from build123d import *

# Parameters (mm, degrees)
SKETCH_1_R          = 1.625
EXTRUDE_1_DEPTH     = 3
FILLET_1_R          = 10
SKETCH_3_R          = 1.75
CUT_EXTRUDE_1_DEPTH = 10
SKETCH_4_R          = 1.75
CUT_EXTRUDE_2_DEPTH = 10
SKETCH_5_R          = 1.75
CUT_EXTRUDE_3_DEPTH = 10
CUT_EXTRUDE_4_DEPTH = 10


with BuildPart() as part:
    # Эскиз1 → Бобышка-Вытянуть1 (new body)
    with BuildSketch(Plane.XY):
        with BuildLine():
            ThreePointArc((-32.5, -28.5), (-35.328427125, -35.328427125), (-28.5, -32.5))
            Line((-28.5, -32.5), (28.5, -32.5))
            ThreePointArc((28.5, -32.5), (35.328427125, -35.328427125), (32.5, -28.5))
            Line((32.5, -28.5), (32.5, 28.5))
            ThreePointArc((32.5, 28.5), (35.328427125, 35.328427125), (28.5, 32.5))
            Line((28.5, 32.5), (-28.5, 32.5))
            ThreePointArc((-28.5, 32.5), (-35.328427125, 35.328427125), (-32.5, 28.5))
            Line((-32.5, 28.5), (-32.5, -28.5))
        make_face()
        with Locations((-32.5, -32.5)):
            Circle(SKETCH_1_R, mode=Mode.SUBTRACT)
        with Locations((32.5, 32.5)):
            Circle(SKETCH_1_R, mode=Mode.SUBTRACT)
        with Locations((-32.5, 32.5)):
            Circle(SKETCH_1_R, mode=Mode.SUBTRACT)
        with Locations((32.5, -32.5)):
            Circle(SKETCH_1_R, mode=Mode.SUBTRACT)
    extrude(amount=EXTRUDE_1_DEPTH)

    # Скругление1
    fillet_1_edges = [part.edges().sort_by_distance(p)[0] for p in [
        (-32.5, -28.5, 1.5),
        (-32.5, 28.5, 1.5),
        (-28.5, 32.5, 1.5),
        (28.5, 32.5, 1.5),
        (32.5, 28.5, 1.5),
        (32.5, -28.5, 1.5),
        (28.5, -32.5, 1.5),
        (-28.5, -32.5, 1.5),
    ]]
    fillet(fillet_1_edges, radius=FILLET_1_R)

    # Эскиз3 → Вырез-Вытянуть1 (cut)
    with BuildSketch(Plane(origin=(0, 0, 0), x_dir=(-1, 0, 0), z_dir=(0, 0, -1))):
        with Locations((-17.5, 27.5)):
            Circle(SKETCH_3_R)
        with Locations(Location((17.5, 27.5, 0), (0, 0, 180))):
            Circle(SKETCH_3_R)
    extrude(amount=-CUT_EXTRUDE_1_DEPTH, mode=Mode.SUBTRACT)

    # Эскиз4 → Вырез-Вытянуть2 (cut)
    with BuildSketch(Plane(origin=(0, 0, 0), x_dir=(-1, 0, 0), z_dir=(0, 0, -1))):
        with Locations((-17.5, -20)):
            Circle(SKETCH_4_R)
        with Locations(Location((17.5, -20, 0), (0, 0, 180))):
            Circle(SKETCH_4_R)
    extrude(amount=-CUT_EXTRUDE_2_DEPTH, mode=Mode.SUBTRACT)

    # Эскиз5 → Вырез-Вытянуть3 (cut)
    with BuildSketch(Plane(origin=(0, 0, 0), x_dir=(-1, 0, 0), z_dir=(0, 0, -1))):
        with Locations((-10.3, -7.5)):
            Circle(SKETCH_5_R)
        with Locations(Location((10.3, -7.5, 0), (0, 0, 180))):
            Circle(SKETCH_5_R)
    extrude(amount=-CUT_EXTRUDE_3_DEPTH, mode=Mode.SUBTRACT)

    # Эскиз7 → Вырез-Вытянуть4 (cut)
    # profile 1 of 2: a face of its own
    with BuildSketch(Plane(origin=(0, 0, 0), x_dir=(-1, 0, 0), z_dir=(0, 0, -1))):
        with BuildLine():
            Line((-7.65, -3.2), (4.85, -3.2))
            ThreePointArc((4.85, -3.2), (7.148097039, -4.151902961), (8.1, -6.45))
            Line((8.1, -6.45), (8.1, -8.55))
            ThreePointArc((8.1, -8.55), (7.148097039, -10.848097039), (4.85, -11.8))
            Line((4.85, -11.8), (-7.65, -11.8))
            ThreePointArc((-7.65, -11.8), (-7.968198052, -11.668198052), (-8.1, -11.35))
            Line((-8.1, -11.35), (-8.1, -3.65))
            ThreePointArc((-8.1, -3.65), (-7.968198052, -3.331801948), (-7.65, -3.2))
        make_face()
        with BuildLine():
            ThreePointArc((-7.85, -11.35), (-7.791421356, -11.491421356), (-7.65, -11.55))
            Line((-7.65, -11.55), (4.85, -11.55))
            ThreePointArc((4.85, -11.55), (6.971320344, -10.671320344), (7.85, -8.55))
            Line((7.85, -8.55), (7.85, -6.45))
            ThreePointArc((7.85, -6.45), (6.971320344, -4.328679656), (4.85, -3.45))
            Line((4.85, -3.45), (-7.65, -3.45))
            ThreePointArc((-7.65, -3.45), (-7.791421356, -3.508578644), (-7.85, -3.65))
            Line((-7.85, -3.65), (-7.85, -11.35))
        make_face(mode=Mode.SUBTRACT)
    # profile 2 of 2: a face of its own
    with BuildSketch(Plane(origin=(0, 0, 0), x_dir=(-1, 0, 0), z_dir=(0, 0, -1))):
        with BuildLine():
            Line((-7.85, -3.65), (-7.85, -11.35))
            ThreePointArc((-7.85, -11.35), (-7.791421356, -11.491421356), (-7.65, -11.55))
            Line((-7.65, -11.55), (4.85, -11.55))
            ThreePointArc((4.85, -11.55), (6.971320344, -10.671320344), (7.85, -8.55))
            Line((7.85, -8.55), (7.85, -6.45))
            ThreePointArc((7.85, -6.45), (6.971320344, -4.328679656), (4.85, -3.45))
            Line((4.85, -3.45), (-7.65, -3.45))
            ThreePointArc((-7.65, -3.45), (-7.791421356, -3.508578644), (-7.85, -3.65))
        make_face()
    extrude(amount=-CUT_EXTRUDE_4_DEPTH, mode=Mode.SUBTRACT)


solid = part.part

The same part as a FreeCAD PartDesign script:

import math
import FreeCAD as App
import Part
import Sketcher

V = App.Vector


def edges_at(feature, points):
    """Names of the edges that pass closest to the given points."""
    edges = feature.Shape.Edges
    near = lambda p: min(range(len(edges)), key=lambda i: edges[i].distToShape(Part.Vertex(*p))[0])
    return sorted({f"Edge{near(p) + 1}" for p in points})

doc = App.newDocument("Part")
params = doc.addObject("Spreadsheet::Sheet", "Params")
for row, (alias, value) in enumerate([
    ("sketch1_radius", "4 mm"),
    ("sketch1_diameter", "3.25 mm"),
    ("sketch1_width", "57 mm"),
    ("pad1_length", "3 mm"),
    ("fillet_radius", "10 mm"),
    ("sketch2_diameter", "3.5 mm"),
    ("pocket1_length", "10 mm"),
    ("sketch3_diameter", "3.5 mm"),
    ("pocket2_length", "10 mm"),
    ("sketch4_diameter", "3.5 mm"),
    ("pocket3_length", "10 mm"),
    ("sketch5_radius", "0.45 mm"),
    ("sketch5_radius2", "3.25 mm"),
    ("sketch5_width", "12.5 mm"),
    ("sketch5_height", "7.7 mm"),
    ("pocket4_length", "10 mm"),
], start=1):
    params.set(f"A{row}", alias)
    params.set(f"B{row}", "=" + value)
    params.setAlias(f"B{row}", alias)

body = doc.addObject("PartDesign::Body", "Body")

# Sketch on XY plane
sketch1 = body.newObject("Sketcher::SketchObject", "Sketch")
sketch1.AttachmentSupport = (doc.getObject("XY_Plane"), [""])
sketch1.MapMode = "FlatFace"
sketch1.addGeometry([
    Part.ArcOfCircle(Part.Circle(V(-32.5, -32.5, 0), V(0, 0, 1), 4), math.radians(90), math.radians(360)),  # 0
    Part.LineSegment(V(-28.5, -32.5, 0), V(28.5, -32.5, 0)),  # 1
    Part.ArcOfCircle(Part.Circle(V(32.5, -32.5, 0), V(0, 0, 1), 4), math.radians(180), math.radians(450)),  # 2
    Part.LineSegment(V(32.5, -28.5, 0), V(32.5, 28.5, 0)),  # 3
    Part.ArcOfCircle(Part.Circle(V(32.5, 32.5, 0), V(0, 0, 1), 4), math.radians(-90), math.radians(180)),  # 4
    Part.LineSegment(V(28.5, 32.5, 0), V(-28.5, 32.5, 0)),  # 5
    Part.ArcOfCircle(Part.Circle(V(-32.5, 32.5, 0), V(0, 0, 1), 4), math.radians(0), math.radians(270)),  # 6
    Part.LineSegment(V(-32.5, 28.5, 0), V(-32.5, -28.5, 0)),  # 7
    Part.Circle(V(-32.5, -32.5, 0), V(0, 0, 1), 1.625),  # 8
    Part.Circle(V(32.5, -32.5, 0), V(0, 0, 1), 1.625),  # 9
    Part.Circle(V(-32.5, 32.5, 0), V(0, 0, 1), 1.625),  # 10
    Part.Circle(V(32.5, 32.5, 0), V(0, 0, 1), 1.625),  # 11
], False)
sketch1.addConstraint([
    Sketcher.Constraint("Coincident", 0, 2, 1, 1),
    Sketcher.Constraint("Coincident", 1, 2, 2, 1),
    Sketcher.Constraint("Coincident", 2, 2, 3, 1),
    Sketcher.Constraint("Coincident", 3, 2, 4, 1),
    Sketcher.Constraint("Coincident", 4, 2, 5, 1),
    Sketcher.Constraint("Coincident", 5, 2, 6, 1),
    Sketcher.Constraint("Coincident", 6, 2, 7, 1),
    Sketcher.Constraint("Coincident", 7, 2, 0, 1),
    Sketcher.Constraint("Horizontal", 1),
    Sketcher.Constraint("Vertical", 3),
    Sketcher.Constraint("Horizontal", 5),
    Sketcher.Constraint("Vertical", 7),
    Sketcher.Constraint("Coincident", 8, 3, 0, 3),
    Sketcher.Constraint("Coincident", 9, 3, 2, 3),
    Sketcher.Constraint("Coincident", 10, 3, 6, 3),
    Sketcher.Constraint("Coincident", 11, 3, 4, 3),
    Sketcher.Constraint("Equal", 0, 2),
    Sketcher.Constraint("Equal", 2, 4),
    Sketcher.Constraint("Equal", 4, 6),
    Sketcher.Constraint("Equal", 8, 9),
    Sketcher.Constraint("Equal", 9, 10),
    Sketcher.Constraint("Equal", 10, 11),
    Sketcher.Constraint("Symmetric", 0, 3, 4, 3, -1, 1),
    Sketcher.Constraint("Symmetric", 2, 3, 6, 3, -1, 1),
    Sketcher.Constraint("Symmetric", 0, 3, 2, 3, -2),
    Sketcher.Constraint("Horizontal", 9, 3, 0, 2),
    Sketcher.Constraint("Horizontal", 11, 3, 4, 2),
    Sketcher.Constraint("Vertical", 11, 3, 2, 2),
    Sketcher.Constraint("Vertical", 10, 3, 6, 2),
    Sketcher.Constraint("Equal", 5, 3),
    Sketcher.Constraint("Radius", 0, 4.0),
    Sketcher.Constraint("Diameter", 8, 3.25),
    Sketcher.Constraint("DistanceX", 1, 1, 1, 2, 57.0),
])
sketch1.setExpression("Constraints[30]", "Params.sketch1_radius")
sketch1.setExpression("Constraints[31]", "Params.sketch1_diameter")
sketch1.setExpression("Constraints[32]", "Params.sketch1_width")
pad1 = body.newObject("PartDesign::Pad", "Pad")
pad1.Profile = sketch1
pad1.setExpression("Length", "Params.pad1_length")
doc.recompute()

fillet = body.newObject("PartDesign::Fillet", "Fillet")
fillet.Base = (pad1, edges_at(pad1, [
    (-32.5, -28.5, 1.5),
    (-32.5, 28.5, 1.5),
    (-28.5, 32.5, 1.5),
    (28.5, 32.5, 1.5),
    (32.5, 28.5, 1.5),
    (32.5, -28.5, 1.5),
    (28.5, -32.5, 1.5),
    (-28.5, -32.5, 1.5),
]))
fillet.setExpression("Radius", "Params.fillet_radius")

# Sketch on XY plane
sketch2 = body.newObject("Sketcher::SketchObject", "Sketch001")
sketch2.AttachmentSupport = (doc.getObject("XY_Plane"), [""])
sketch2.MapMode = "FlatFace"
sketch2.addGeometry([
    Part.Circle(V(17.5, 27.5, 0), V(0, 0, 1), 1.75),
    Part.Circle(V(-17.5, 27.5, 0), V(0, 0, 1), 1.75),
], False)
sketch2.addConstraint([
    Sketcher.Constraint("Equal", 0, 1),
    Sketcher.Constraint("Symmetric", 0, 3, 1, 3, -2),
    Sketcher.Constraint("Diameter", 0, 3.5),
    Sketcher.Constraint("DistanceX", 1, 3, 0, 3, 35.0),
    Sketcher.Constraint("DistanceY", -1, 1, 0, 3, 27.5),
])
sketch2.setExpression("Constraints[2]", "Params.sketch2_diameter")
pocket1 = body.newObject("PartDesign::Pocket", "Pocket")
pocket1.Profile = sketch2
pocket1.setExpression("Length", "Params.pocket1_length")
pocket1.Reversed = True

# Sketch on XY plane
sketch3 = body.newObject("Sketcher::SketchObject", "Sketch002")
sketch3.AttachmentSupport = (doc.getObject("XY_Plane"), [""])
sketch3.MapMode = "FlatFace"
sketch3.addGeometry([
    Part.Circle(V(17.5, -20, 0), V(0, 0, 1), 1.75),
    Part.Circle(V(-17.5, -20, 0), V(0, 0, 1), 1.75),
], False)
sketch3.addConstraint([
    Sketcher.Constraint("Equal", 0, 1),
    Sketcher.Constraint("Symmetric", 0, 3, 1, 3, -2),
    Sketcher.Constraint("Diameter", 0, 3.5),
    Sketcher.Constraint("DistanceY", 0, 3, -1, 1, 20.0),
    Sketcher.Constraint("DistanceX", 1, 3, 0, 3, 35.0),
])
sketch3.setExpression("Constraints[2]", "Params.sketch3_diameter")
pocket2 = body.newObject("PartDesign::Pocket", "Pocket001")
pocket2.Profile = sketch3
pocket2.setExpression("Length", "Params.pocket2_length")
pocket2.Reversed = True

# Sketch on XY plane
sketch4 = body.newObject("Sketcher::SketchObject", "Sketch003")
sketch4.AttachmentSupport = (doc.getObject("XY_Plane"), [""])
sketch4.MapMode = "FlatFace"
sketch4.addGeometry([
    Part.Circle(V(10.3, -7.5, 0), V(0, 0, 1), 1.75),
    Part.Circle(V(-10.3, -7.5, 0), V(0, 0, 1), 1.75),
], False)
sketch4.addConstraint([
    Sketcher.Constraint("Equal", 0, 1),
    Sketcher.Constraint("Symmetric", 0, 3, 1, 3, -2),
    Sketcher.Constraint("Diameter", 0, 3.5),
    Sketcher.Constraint("DistanceX", -1, 1, 0, 3, 10.3),
    Sketcher.Constraint("DistanceY", 0, 3, -1, 1, 7.5),
])
sketch4.setExpression("Constraints[2]", "Params.sketch4_diameter")
pocket3 = body.newObject("PartDesign::Pocket", "Pocket002")
pocket3.Profile = sketch4
pocket3.setExpression("Length", "Params.pocket3_length")
pocket3.Reversed = True

# Sketch on XY plane
sketch5 = body.newObject("Sketcher::SketchObject", "Sketch004")
sketch5.AttachmentSupport = (doc.getObject("XY_Plane"), [""])
sketch5.MapMode = "FlatFace"
sketch5.addGeometry([
    Part.LineSegment(V(-4.85, -3.2, 0), V(7.65, -3.2, 0)),  # 0
    Part.ArcOfCircle(Part.Circle(V(7.65, -3.65, 0), V(0, 0, 1), 0.45), math.radians(0), math.radians(90)),  # 1
    Part.LineSegment(V(8.1, -3.65, 0), V(8.1, -11.35, 0)),  # 2
    Part.ArcOfCircle(Part.Circle(V(7.65, -11.35, 0), V(0, 0, 1), 0.45), math.radians(-90), math.radians(0)),  # 3
    Part.LineSegment(V(7.65, -11.8, 0), V(-4.85, -11.8, 0)),  # 4
    Part.ArcOfCircle(Part.Circle(V(-4.85, -8.55, 0), V(0, 0, 1), 3.25), math.radians(180), math.radians(270)),  # 5
    Part.LineSegment(V(-8.1, -8.55, 0), V(-8.1, -6.45, 0)),  # 6
    Part.ArcOfCircle(Part.Circle(V(-4.85, -6.45, 0), V(0, 0, 1), 3.25), math.radians(90), math.radians(180)),  # 7
], False)
sketch5.addConstraint([
    Sketcher.Constraint("Tangent", 0, 2, 1, 2),
    Sketcher.Constraint("Tangent", 1, 1, 2, 1),
    Sketcher.Constraint("Tangent", 2, 2, 3, 2),
    Sketcher.Constraint("Tangent", 3, 1, 4, 1),
    Sketcher.Constraint("Tangent", 4, 2, 5, 2),
    Sketcher.Constraint("Tangent", 5, 1, 6, 1),
    Sketcher.Constraint("Tangent", 6, 2, 7, 2),
    Sketcher.Constraint("Tangent", 7, 1, 0, 1),
    Sketcher.Constraint("Horizontal", 0),
    Sketcher.Constraint("Vertical", 2),
    Sketcher.Constraint("Horizontal", 4),
    Sketcher.Constraint("Vertical", 6),
    Sketcher.Constraint("Equal", 1, 3),
    Sketcher.Constraint("Equal", 5, 7),
    Sketcher.Constraint("Radius", 1, 0.45),
    Sketcher.Constraint("Radius", 5, 3.25),
    Sketcher.Constraint("DistanceX", 0, 1, 0, 2, 12.5),
    Sketcher.Constraint("DistanceY", 2, 2, 2, 1, 7.7),
    Sketcher.Constraint("DistanceY", 0, 2, -1, 1, 3.2),
    Sketcher.Constraint("DistanceX", -1, 1, 1, 1, 8.1),
])
sketch5.setExpression("Constraints[14]", "Params.sketch5_radius")
sketch5.setExpression("Constraints[15]", "Params.sketch5_radius2")
sketch5.setExpression("Constraints[16]", "Params.sketch5_width")
sketch5.setExpression("Constraints[17]", "Params.sketch5_height")
pocket4 = body.newObject("PartDesign::Pocket", "Pocket003")
pocket4.Profile = sketch5
pocket4.setExpression("Length", "Params.pocket4_length")
pocket4.Reversed = True

doc.recompute()
